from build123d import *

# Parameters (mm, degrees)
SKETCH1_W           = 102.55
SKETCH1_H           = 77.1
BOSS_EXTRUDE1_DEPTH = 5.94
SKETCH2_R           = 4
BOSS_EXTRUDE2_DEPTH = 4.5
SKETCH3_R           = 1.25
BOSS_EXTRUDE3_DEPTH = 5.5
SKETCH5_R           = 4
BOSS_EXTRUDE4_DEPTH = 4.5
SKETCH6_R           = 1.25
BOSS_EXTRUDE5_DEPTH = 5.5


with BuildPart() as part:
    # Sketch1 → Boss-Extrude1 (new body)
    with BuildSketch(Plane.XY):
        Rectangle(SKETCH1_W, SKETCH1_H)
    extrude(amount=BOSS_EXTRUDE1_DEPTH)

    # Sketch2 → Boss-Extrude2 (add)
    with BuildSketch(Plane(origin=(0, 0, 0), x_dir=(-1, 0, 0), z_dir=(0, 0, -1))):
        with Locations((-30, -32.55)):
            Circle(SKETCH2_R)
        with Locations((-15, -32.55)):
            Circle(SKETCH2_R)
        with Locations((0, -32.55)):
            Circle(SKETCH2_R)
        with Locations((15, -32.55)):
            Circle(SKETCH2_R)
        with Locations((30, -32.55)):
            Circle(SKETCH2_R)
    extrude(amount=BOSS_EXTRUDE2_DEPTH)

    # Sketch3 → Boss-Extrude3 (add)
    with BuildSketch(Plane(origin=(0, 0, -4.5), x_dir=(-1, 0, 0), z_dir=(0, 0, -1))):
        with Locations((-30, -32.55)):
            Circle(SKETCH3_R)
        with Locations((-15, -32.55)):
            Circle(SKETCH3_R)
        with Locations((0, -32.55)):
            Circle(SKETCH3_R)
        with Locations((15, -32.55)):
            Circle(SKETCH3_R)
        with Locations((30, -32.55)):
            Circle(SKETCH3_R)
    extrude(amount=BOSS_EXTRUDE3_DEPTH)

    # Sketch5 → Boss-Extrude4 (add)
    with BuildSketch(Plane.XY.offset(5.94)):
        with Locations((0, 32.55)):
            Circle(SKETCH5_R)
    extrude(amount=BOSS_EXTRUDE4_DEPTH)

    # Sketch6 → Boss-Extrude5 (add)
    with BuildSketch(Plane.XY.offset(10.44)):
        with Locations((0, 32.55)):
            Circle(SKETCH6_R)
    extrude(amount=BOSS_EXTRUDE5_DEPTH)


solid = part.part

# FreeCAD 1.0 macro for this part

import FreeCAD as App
import Part
import Sketcher
from FreeCAD import Vector

doc = App.newDocument("Part")
body = doc.addObject("PartDesign::Body", "Body")

# Sketch on XY plane
sketch1 = body.newObject("Sketcher::SketchObject", "Sketch")
sketch1.AttachmentSupport = (doc.getObject("XY_Plane"), [""])
sketch1.MapMode = "FlatFace"
sketch1.addGeometry(Part.LineSegment(Vector(-51.275, 38.55, 0), Vector(-51.275, -38.55, 0)), False)
sketch1.addGeometry(Part.LineSegment(Vector(-51.275, -38.55, 0), Vector(51.275, -38.55, 0)), False)
sketch1.addGeometry(Part.LineSegment(Vector(51.275, -38.55, 0), Vector(51.275, 38.55, 0)), False)
sketch1.addGeometry(Part.LineSegment(Vector(51.275, 38.55, 0), Vector(-51.275, 38.55, 0)), False)
sketch1.addConstraint(Sketcher.Constraint("Coincident", 0, 2, 1, 1))
sketch1.addConstraint(Sketcher.Constraint("Coincident", 1, 2, 2, 1))
sketch1.addConstraint(Sketcher.Constraint("Coincident", 2, 2, 3, 1))
sketch1.addConstraint(Sketcher.Constraint("Coincident", 3, 2, 0, 1))
sketch1.addConstraint(Sketcher.Constraint("Vertical", 0))
sketch1.addConstraint(Sketcher.Constraint("Horizontal", 1))
sketch1.addConstraint(Sketcher.Constraint("Vertical", 2))
sketch1.addConstraint(Sketcher.Constraint("Horizontal", 3))
sketch1.addConstraint(Sketcher.Constraint("Symmetric", 0, 2, 2, 2, -1, 1))
sketch1.addConstraint(Sketcher.Constraint("DistanceY", 0, 2, 0, 1, 77.1))
sketch1.addConstraint(Sketcher.Constraint("DistanceX", 1, 1, 1, 2, 102.55))
pad1 = body.newObject("PartDesign::Pad", "Pad")
pad1.Profile = sketch1
pad1.Length = 5.94

# Sketch on XY plane
sketch2 = body.newObject("Sketcher::SketchObject", "Sketch001")
sketch2.AttachmentSupport = (doc.getObject("XY_Plane"), [""])
sketch2.MapMode = "FlatFace"
sketch2.addGeometry(Part.Circle(Vector(30, -32.55, 0), Vector(0, 0, 1), 4), False)
sketch2.addGeometry(Part.Circle(Vector(15, -32.55, 0), Vector(0, 0, 1), 4), False)
sketch2.addGeometry(Part.Circle(Vector(0, -32.55, 0), Vector(0, 0, 1), 4), False)
sketch2.addGeometry(Part.Circle(Vector(-15, -32.55, 0), Vector(0, 0, 1), 4), False)
sketch2.addGeometry(Part.Circle(Vector(-30, -32.55, 0), Vector(0, 0, 1), 4), False)
sketch2.addConstraint(Sketcher.Constraint("Equal", 0, 1))
sketch2.addConstraint(Sketcher.Constraint("Equal", 1, 2))
sketch2.addConstraint(Sketcher.Constraint("Equal", 2, 3))
sketch2.addConstraint(Sketcher.Constraint("Equal", 3, 4))
sketch2.addConstraint(Sketcher.Constraint("Symmetric", 1, 3, 3, 3, -2))
sketch2.addConstraint(Sketcher.Constraint("Symmetric", 0, 3, 4, 3, -2))
sketch2.addConstraint(Sketcher.Constraint("PointOnObject", 2, 3, -2))
sketch2.addConstraint(Sketcher.Constraint("Horizontal", 0, 3, 1, 3))
sketch2.addConstraint(Sketcher.Constraint("Horizontal", 1, 3, 2, 3))
sketch2.addConstraint(Sketcher.Constraint("Diameter", 0, 8.0))
sketch2.addConstraint(Sketcher.Constraint("DistanceX", -1, 1, 0, 3, 30.0))
sketch2.addConstraint(Sketcher.Constraint("DistanceX", -1, 1, 1, 3, 15.0))
sketch2.addConstraint(Sketcher.Constraint("DistanceY", 0, 3, -1, 1, 32.55))
pad2 = body.newObject("PartDesign::Pad", "Pad001")
pad2.Profile = sketch2
pad2.Length = 4.5
pad2.Reversed = True

# Sketch on XY plane
sketch3 = body.newObject("Sketcher::SketchObject", "Sketch002")
sketch3.AttachmentSupport = (doc.getObject("XY_Plane"), [""])
sketch3.MapMode = "FlatFace"
sketch3.AttachmentOffset = App.Placement(Vector(0, 0, -4.5), App.Rotation())
sketch3.addGeometry(Part.Circle(Vector(30, -32.55, 0), Vector(0, 0, 1), 1.25), False)
sketch3.addGeometry(Part.Circle(Vector(15, -32.55, 0), Vector(0, 0, 1), 1.25), False)
sketch3.addGeometry(Part.Circle(Vector(0, -32.55, 0), Vector(0, 0, 1), 1.25), False)
sketch3.addGeometry(Part.Circle(Vector(-15, -32.55, 0), Vector(0, 0, 1), 1.25), False)
sketch3.addGeometry(Part.Circle(Vector(-30, -32.55, 0), Vector(0, 0, 1), 1.25), False)
sketch3.addConstraint(Sketcher.Constraint("Equal", 0, 1))
sketch3.addConstraint(Sketcher.Constraint("Equal", 1, 2))
sketch3.addConstraint(Sketcher.Constraint("Equal", 2, 3))
sketch3.addConstraint(Sketcher.Constraint("Equal", 3, 4))
sketch3.addConstraint(Sketcher.Constraint("Symmetric", 1, 3, 3, 3, -2))
sketch3.addConstraint(Sketcher.Constraint("Symmetric", 0, 3, 4, 3, -2))
sketch3.addConstraint(Sketcher.Constraint("PointOnObject", 2, 3, -2))
sketch3.addConstraint(Sketcher.Constraint("Horizontal", 0, 3, 1, 3))
sketch3.addConstraint(Sketcher.Constraint("Horizontal", 1, 3, 2, 3))
sketch3.addConstraint(Sketcher.Constraint("Diameter", 0, 2.5))
sketch3.addConstraint(Sketcher.Constraint("DistanceX", -1, 1, 0, 3, 30.0))
sketch3.addConstraint(Sketcher.Constraint("DistanceX", -1, 1, 1, 3, 15.0))
sketch3.addConstraint(Sketcher.Constraint("DistanceY", 0, 3, -1, 1, 32.55))
pad3 = body.newObject("PartDesign::Pad", "Pad002")
pad3.Profile = sketch3
pad3.Length = 5.5
pad3.Reversed = True

# Sketch on XY plane
sketch4 = body.newObject("Sketcher::SketchObject", "Sketch003")
sketch4.AttachmentSupport = (doc.getObject("XY_Plane"), [""])
sketch4.MapMode = "FlatFace"
sketch4.AttachmentOffset = App.Placement(Vector(0, 0, 5.94), App.Rotation())
sketch4.addGeometry(Part.Circle(Vector(0, 32.55, 0), Vector(0, 0, 1), 4), False)
sketch4.addConstraint(Sketcher.Constraint("PointOnObject", 0, 3, -2))
sketch4.addConstraint(Sketcher.Constraint("Diameter", 0, 8.0))
sketch4.addConstraint(Sketcher.Constraint("DistanceY", -1, 1, 0, 3, 32.55))
pad4 = body.newObject("PartDesign::Pad", "Pad003")
pad4.Profile = sketch4
pad4.Length = 4.5

# Sketch on XY plane
sketch5 = body.newObject("Sketcher::SketchObject", "Sketch004")
sketch5.AttachmentSupport = (doc.getObject("XY_Plane"), [""])
sketch5.MapMode = "FlatFace"
sketch5.AttachmentOffset = App.Placement(Vector(0, 0, 10.44), App.Rotation())
sketch5.addGeometry(Part.Circle(Vector(0, 32.55, 0), Vector(0, 0, 1), 1.25), False)
sketch5.addConstraint(Sketcher.Constraint("PointOnObject", 0, 3, -2))
sketch5.addConstraint(Sketcher.Constraint("Diameter", 0, 2.5))
sketch5.addConstraint(Sketcher.Constraint("DistanceY", -1, 1, 0, 3, 32.55))
pad5 = body.newObject("PartDesign::Pad", "Pad004")
pad5.Profile = sketch5
pad5.Length = 5.5

doc.recompute()
